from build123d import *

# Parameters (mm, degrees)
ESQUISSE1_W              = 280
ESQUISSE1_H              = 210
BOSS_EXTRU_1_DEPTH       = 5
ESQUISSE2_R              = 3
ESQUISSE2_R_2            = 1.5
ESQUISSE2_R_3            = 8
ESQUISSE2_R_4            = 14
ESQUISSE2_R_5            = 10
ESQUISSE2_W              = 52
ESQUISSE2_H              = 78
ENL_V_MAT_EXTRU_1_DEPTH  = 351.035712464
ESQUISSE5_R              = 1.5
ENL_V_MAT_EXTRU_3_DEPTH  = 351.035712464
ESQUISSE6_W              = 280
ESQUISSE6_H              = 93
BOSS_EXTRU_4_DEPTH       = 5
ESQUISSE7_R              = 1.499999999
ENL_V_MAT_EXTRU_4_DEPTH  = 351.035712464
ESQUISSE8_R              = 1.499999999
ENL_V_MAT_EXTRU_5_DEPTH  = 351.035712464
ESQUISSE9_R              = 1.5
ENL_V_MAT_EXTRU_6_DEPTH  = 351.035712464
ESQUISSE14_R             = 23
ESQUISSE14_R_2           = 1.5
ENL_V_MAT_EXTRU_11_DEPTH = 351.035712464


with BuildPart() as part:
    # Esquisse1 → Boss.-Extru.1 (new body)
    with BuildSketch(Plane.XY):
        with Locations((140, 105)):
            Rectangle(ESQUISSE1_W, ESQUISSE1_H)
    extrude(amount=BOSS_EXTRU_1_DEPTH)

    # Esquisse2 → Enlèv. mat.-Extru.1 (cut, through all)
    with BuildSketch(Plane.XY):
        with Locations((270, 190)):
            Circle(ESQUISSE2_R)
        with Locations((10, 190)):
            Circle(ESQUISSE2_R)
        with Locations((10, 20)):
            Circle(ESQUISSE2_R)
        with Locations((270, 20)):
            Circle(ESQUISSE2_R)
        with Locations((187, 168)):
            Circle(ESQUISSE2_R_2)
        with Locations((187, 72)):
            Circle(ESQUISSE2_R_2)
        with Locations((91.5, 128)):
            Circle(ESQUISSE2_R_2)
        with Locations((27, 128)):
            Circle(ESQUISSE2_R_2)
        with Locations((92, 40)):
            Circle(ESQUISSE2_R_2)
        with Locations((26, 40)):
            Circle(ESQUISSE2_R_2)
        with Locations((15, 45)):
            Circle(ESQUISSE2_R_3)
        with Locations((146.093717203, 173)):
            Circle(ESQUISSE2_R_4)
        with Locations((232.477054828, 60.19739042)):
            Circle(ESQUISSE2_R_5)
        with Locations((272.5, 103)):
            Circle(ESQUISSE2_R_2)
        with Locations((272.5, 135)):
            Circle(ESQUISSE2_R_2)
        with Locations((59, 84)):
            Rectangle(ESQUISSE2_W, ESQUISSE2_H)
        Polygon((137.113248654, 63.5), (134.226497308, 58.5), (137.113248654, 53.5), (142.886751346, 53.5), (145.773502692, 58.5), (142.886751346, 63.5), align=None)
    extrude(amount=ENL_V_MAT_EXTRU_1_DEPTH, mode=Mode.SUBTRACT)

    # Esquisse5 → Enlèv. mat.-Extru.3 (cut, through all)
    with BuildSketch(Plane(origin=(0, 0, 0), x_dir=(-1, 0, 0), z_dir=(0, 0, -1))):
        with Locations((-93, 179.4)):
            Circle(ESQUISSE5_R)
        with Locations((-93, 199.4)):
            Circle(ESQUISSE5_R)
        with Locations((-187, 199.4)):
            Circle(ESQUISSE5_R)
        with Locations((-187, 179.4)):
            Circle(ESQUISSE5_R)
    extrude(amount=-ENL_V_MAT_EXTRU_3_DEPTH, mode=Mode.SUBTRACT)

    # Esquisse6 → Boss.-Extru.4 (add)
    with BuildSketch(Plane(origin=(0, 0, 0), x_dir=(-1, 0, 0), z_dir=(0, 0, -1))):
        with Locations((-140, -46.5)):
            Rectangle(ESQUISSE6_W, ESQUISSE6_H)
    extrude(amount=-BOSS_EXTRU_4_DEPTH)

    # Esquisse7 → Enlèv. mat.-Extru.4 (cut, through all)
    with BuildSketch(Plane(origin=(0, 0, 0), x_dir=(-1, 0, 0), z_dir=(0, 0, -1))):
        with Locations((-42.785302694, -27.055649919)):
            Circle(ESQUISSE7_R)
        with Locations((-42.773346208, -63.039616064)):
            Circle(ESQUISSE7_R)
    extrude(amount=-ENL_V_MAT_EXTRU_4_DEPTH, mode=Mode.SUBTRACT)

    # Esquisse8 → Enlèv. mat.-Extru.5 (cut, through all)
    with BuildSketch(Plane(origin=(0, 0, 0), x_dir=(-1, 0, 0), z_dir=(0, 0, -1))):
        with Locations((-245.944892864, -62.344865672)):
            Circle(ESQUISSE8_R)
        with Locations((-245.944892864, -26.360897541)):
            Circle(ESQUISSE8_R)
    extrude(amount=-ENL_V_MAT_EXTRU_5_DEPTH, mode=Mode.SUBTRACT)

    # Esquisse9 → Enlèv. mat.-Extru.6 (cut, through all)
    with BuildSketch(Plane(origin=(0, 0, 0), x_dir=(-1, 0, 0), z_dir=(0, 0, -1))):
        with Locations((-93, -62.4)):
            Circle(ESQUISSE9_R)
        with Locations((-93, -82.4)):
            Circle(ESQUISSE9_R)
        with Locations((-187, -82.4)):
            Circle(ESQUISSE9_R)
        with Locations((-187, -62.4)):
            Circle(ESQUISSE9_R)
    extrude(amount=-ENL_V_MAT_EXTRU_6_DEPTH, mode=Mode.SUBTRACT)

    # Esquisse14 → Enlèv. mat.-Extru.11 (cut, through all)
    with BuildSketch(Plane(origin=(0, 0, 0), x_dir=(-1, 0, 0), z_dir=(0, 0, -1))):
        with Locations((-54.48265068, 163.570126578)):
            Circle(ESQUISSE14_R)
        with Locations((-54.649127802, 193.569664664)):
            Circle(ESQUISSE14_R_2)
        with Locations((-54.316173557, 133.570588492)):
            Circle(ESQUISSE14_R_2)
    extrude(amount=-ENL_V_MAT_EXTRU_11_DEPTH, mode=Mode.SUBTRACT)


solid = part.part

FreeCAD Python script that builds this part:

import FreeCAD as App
import Part
import Sketcher
Q = App.Units.Quantity


def add_polygon(sketch, points):
    """Adds a closed chain of lines whose ends are joined by coincident constraints."""
    first, n = sketch.GeometryCount, len(points)
    for a, b in zip(points, points[1:] + points[:1]):
        sketch.addGeometry(Part.LineSegment(App.Vector(*a, 0), App.Vector(*b, 0)), False)
    for i in range(n):
        sketch.addConstraint(Sketcher.Constraint("Coincident", first + i, 2, first + (i + 1) % n, 1))

doc = App.newDocument("Part")
body = doc.addObject("PartDesign::Body", "Body")

# Sketch on XY plane
sketch1 = doc.addObject("Sketcher::SketchObject", "Sketch")
body.addObject(sketch1)
sketch1.AttachmentSupport = (doc.XY_Plane, [""])
sketch1.MapMode = "FlatFace"
add_polygon(sketch1, [(0, 210), (0, 0), (280, 0), (280, 210)])  # lines 0-3
sketch1.addConstraint(Sketcher.Constraint("Vertical", 0))
sketch1.addConstraint(Sketcher.Constraint("Horizontal", 1))
sketch1.addConstraint(Sketcher.Constraint("Vertical", 2))
sketch1.addConstraint(Sketcher.Constraint("Horizontal", 3))
sketch1.addConstraint(Sketcher.Constraint("Coincident", 0, 2, -1, 1))
sketch1.addConstraint(Sketcher.Constraint("DistanceX", 1, 1, 1, 2, Q("280 mm")))
sketch1.addConstraint(Sketcher.Constraint("DistanceY", 0, 2, 0, 1, Q("210 mm")))
pad1 = doc.addObject("PartDesign::Pad", "Pad")
body.addObject(pad1)
pad1.Profile = sketch1
pad1.Length = 5

# Sketch on XY plane
sketch2 = doc.addObject("Sketcher::SketchObject", "Sketch001")
body.addObject(sketch2)
sketch2.AttachmentSupport = (doc.XY_Plane, [""])
sketch2.MapMode = "FlatFace"
sketch2.addGeometry(Part.Circle(App.Vector(270, 190, 0), App.Vector(0, 0, 1), 3), False)  # 0
sketch2.addGeometry(Part.Circle(App.Vector(10, 190, 0), App.Vector(0, 0, 1), 3), False)  # 1
sketch2.addGeometry(Part.Circle(App.Vector(10, 20, 0), App.Vector(0, 0, 1), 3), False)  # 2
sketch2.addGeometry(Part.Circle(App.Vector(270, 20, 0), App.Vector(0, 0, 1), 3), False)  # 3
sketch2.addGeometry(Part.Circle(App.Vector(187, 168, 0), App.Vector(0, 0, 1), 1.5), False)  # 4
sketch2.addGeometry(Part.Circle(App.Vector(187, 72, 0), App.Vector(0, 0, 1), 1.5), False)  # 5
sketch2.addGeometry(Part.Circle(App.Vector(91.5, 128, 0), App.Vector(0, 0, 1), 1.5), False)  # 6
sketch2.addGeometry(Part.Circle(App.Vector(27, 128, 0), App.Vector(0, 0, 1), 1.5), False)  # 7
sketch2.addGeometry(Part.Circle(App.Vector(92, 40, 0), App.Vector(0, 0, 1), 1.5), False)  # 8
sketch2.addGeometry(Part.Circle(App.Vector(26, 40, 0), App.Vector(0, 0, 1), 1.5), False)  # 9
sketch2.addGeometry(Part.Circle(App.Vector(15, 45, 0), App.Vector(0, 0, 1), 8), False)  # 10
sketch2.addGeometry(Part.Circle(App.Vector(146.093717, 173, 0), App.Vector(0, 0, 1), 14), False)  # 11
sketch2.addGeometry(Part.Circle(App.Vector(232.477055, 60.19739, 0), App.Vector(0, 0, 1), 10), False)  # 12
sketch2.addGeometry(Part.Circle(App.Vector(272.5, 103, 0), App.Vector(0, 0, 1), 1.5), False)  # 13
sketch2.addGeometry(Part.Circle(App.Vector(272.5, 135, 0), App.Vector(0, 0, 1), 1.5), False)  # 14
add_polygon(sketch2, [(33, 123), (33, 45), (85, 45), (85, 123)])  # lines 15-18
add_polygon(sketch2, [(137.113249, 63.5), (134.226497, 58.5), (137.113249, 53.5), (142.886751, 53.5), (145.773503, 58.5), (142.886751, 63.5)])  # lines 19-24
sketch2.addConstraint(Sketcher.Constraint("Vertical", 15))
sketch2.addConstraint(Sketcher.Constraint("Horizontal", 16))
sketch2.addConstraint(Sketcher.Constraint("Vertical", 17))
sketch2.addConstraint(Sketcher.Constraint("Horizontal", 18))
sketch2.addConstraint(Sketcher.Constraint("Horizontal", 21))
sketch2.addConstraint(Sketcher.Constraint("Horizontal", 24))
sketch2.addConstraint(Sketcher.Constraint("Equal", 0, 1))
sketch2.addConstraint(Sketcher.Constraint("Equal", 1, 2))
sketch2.addConstraint(Sketcher.Constraint("Equal", 2, 3))
sketch2.addConstraint(Sketcher.Constraint("Equal", 4, 5))
sketch2.addConstraint(Sketcher.Constraint("Equal", 5, 6))
sketch2.addConstraint(Sketcher.Constraint("Equal", 6, 7))
sketch2.addConstraint(Sketcher.Constraint("Equal", 7, 8))
sketch2.addConstraint(Sketcher.Constraint("Equal", 8, 9))
sketch2.addConstraint(Sketcher.Constraint("Equal", 9, 13))
sketch2.addConstraint(Sketcher.Constraint("Equal", 13, 14))
sketch2.addConstraint(Sketcher.Constraint("Parallel", 19, 22))
sketch2.addConstraint(Sketcher.Constraint("Parallel", 20, 23))
sketch2.addConstraint(Sketcher.Constraint("Horizontal", 0, 3, 1, 3))
sketch2.addConstraint(Sketcher.Constraint("Horizontal", 2, 3, 3, 3))
sketch2.addConstraint(Sketcher.Constraint("Horizontal", 6, 3, 7, 3))
sketch2.addConstraint(Sketcher.Constraint("Horizontal", 8, 3, 9, 3))
sketch2.addConstraint(Sketcher.Constraint("Horizontal", 10, 3, 15, 2))
sketch2.addConstraint(Sketcher.Constraint("Horizontal", 19, 2, 22, 2))
sketch2.addConstraint(Sketcher.Constraint("Vertical", 1, 3, 2, 3))
sketch2.addConstraint(Sketcher.Constraint("Vertical", 0, 3, 3, 3))
sketch2.addConstraint(Sketcher.Constraint("Vertical", 4, 3, 5, 3))
sketch2.addConstraint(Sketcher.Constraint("Vertical", 13, 3, 14, 3))
sketch2.addConstraint(Sketcher.Constraint("Vertical", 21, 2, 23, 2))
sketch2.addConstraint(Sketcher.Constraint("Vertical", 20, 2, 24, 2))
sketch2.addConstraint(Sketcher.Constraint("Diameter", 0, Q("6 mm")))
sketch2.addConstraint(Sketcher.Constraint("Diameter", 4, Q("3 mm")))
sketch2.addConstraint(Sketcher.Constraint("Diameter", 10, Q("16 mm")))
sketch2.addConstraint(Sketcher.Constraint("Diameter", 11, Q("28 mm")))
sketch2.addConstraint(Sketcher.Constraint("Diameter", 12, Q("20 mm")))
sketch2.addConstraint(Sketcher.Constraint("DistanceX", 16, 1, 16, 2, Q("52 mm")))
sketch2.addConstraint(Sketcher.Constraint("DistanceY", 15, 2, 15, 1, Q("78 mm")))
sketch2.addConstraint(Sketcher.Constraint("Angle", 19, Q("-120 deg")))
sketch2.addConstraint(Sketcher.Constraint("DistanceX", -1, 1, 0, 3, Q("270 mm")))
sketch2.addConstraint(Sketcher.Constraint("DistanceY", -1, 1, 0, 3, Q("190 mm")))
sketch2.addConstraint(Sketcher.Constraint("DistanceX", -1, 1, 1, 3, Q("10 mm")))
sketch2.addConstraint(Sketcher.Constraint("DistanceY", -1, 1, 2, 3, Q("20 mm")))
sketch2.addConstraint(Sketcher.Constraint("DistanceX", -1, 1, 4, 3, Q("187 mm")))
sketch2.addConstraint(Sketcher.Constraint("DistanceY", -1, 1, 4, 3, Q("168 mm")))
sketch2.addConstraint(Sketcher.Constraint("DistanceY", -1, 1, 5, 3, Q("72 mm")))
sketch2.addConstraint(Sketcher.Constraint("DistanceY", -1, 1, 6, 3, Q("128 mm")))
sketch2.addConstraint(Sketcher.Constraint("DistanceX", -1, 1, 7, 3, Q("27 mm")))
sketch2.addConstraint(Sketcher.Constraint("DistanceX", -1, 1, 8, 3, Q("92 mm")))
sketch2.addConstraint(Sketcher.Constraint("DistanceY", -1, 1, 8, 3, Q("40 mm")))
sketch2.addConstraint(Sketcher.Constraint("DistanceX", -1, 1, 9, 3, Q("26 mm")))
sketch2.addConstraint(Sketcher.Constraint("DistanceX", -1, 1, 10, 3, Q("15 mm")))
sketch2.addConstraint(Sketcher.Constraint("DistanceY", -1, 1, 10, 3, Q("45 mm")))
sketch2.addConstraint(Sketcher.Constraint("DistanceY", -1, 1, 11, 3, Q("173 mm")))
sketch2.addConstraint(Sketcher.Constraint("DistanceY", -1, 1, 13, 3, Q("103 mm")))
sketch2.addConstraint(Sketcher.Constraint("DistanceY", -1, 1, 14, 3, Q("135 mm")))
sketch2.addConstraint(Sketcher.Constraint("DistanceX", -1, 1, 15, 2, Q("33 mm")))
sketch2.addConstraint(Sketcher.Constraint("DistanceY", 20, 2, 19, 2, Q("5 mm")))
sketch2.addConstraint(Sketcher.Constraint("DistanceX", -1, 1, 6, 3, Q("91.5 mm")))
sketch2.addConstraint(Sketcher.Constraint("DistanceX", -1, 1, 13, 3, Q("272.5 mm")))
sketch2.addConstraint(Sketcher.Constraint("DistanceY", -1, 1, 19, 2, Q("58.5 mm")))
sketch2.addConstraint(Sketcher.Constraint("DistanceX", 21, 1, 21, 2, Q("5.773503 mm")))
sketch2.addConstraint(Sketcher.Constraint("DistanceY", -1, 1, 12, 3, Q("60.19739 mm")))
sketch2.addConstraint(Sketcher.Constraint("DistanceX", -1, 1, 20, 2, Q("137.113249 mm")))
sketch2.addConstraint(Sketcher.Constraint("DistanceX", -1, 1, 11, 3, Q("146.093717 mm")))
sketch2.addConstraint(Sketcher.Constraint("DistanceX", -1, 1, 12, 3, Q("232.477055 mm")))
pocket1 = doc.addObject("PartDesign::Pocket", "Pocket")
body.addObject(pocket1)
pocket1.Profile = sketch2
pocket1.Type = "ThroughAll"
pocket1.Reversed = True

# Sketch on XY plane
sketch3 = doc.addObject("Sketcher::SketchObject", "Sketch002")
body.addObject(sketch3)
sketch3.AttachmentSupport = (doc.XY_Plane, [""])
sketch3.MapMode = "FlatFace"
sketch3.addGeometry(Part.Circle(App.Vector(93, 179.4, 0), App.Vector(0, 0, 1), 1.5), False)
sketch3.addGeometry(Part.Circle(App.Vector(93, 199.4, 0), App.Vector(0, 0, 1), 1.5), False)
sketch3.addGeometry(Part.Circle(App.Vector(187, 199.4, 0), App.Vector(0, 0, 1), 1.5), False)
sketch3.addGeometry(Part.Circle(App.Vector(187, 179.4, 0), App.Vector(0, 0, 1), 1.5), False)
sketch3.addConstraint(Sketcher.Constraint("Equal", 0, 1))
sketch3.addConstraint(Sketcher.Constraint("Equal", 1, 2))
sketch3.addConstraint(Sketcher.Constraint("Equal", 2, 3))
sketch3.addConstraint(Sketcher.Constraint("Horizontal", 1, 3, 2, 3))
sketch3.addConstraint(Sketcher.Constraint("Horizontal", 0, 3, 3, 3))
sketch3.addConstraint(Sketcher.Constraint("Vertical", 0, 3, 1, 3))
sketch3.addConstraint(Sketcher.Constraint("Vertical", 2, 3, 3, 3))
sketch3.addConstraint(Sketcher.Constraint("Diameter", 0, Q("3 mm")))
sketch3.addConstraint(Sketcher.Constraint("DistanceX", -1, 1, 0, 3, Q("93 mm")))
sketch3.addConstraint(Sketcher.Constraint("DistanceX", -1, 1, 2, 3, Q("187 mm")))
sketch3.addConstraint(Sketcher.Constraint("DistanceY", 0, 3, 1, 3, Q("20 mm")))
sketch3.addConstraint(Sketcher.Constraint("DistanceY", -1, 1, 0, 3, Q("179.4 mm")))
pocket2 = doc.addObject("PartDesign::Pocket", "Pocket001")
body.addObject(pocket2)
pocket2.Profile = sketch3
pocket2.Type = "ThroughAll"
pocket2.Reversed = True

# Sketch on XY plane
sketch4 = doc.addObject("Sketcher::SketchObject", "Sketch003")
body.addObject(sketch4)
sketch4.AttachmentSupport = (doc.XY_Plane, [""])
sketch4.MapMode = "FlatFace"
add_polygon(sketch4, [(280, 0), (280, -93), (0, -93), (0, 0)])  # lines 0-3
sketch4.addConstraint(Sketcher.Constraint("Vertical", 0))
sketch4.addConstraint(Sketcher.Constraint("Horizontal", 1))
sketch4.addConstraint(Sketcher.Constraint("Vertical", 2))
sketch4.addConstraint(Sketcher.Constraint("Horizontal", 3))
sketch4.addConstraint(Sketcher.Constraint("Coincident", 2, 2, -1, 1))
sketch4.addConstraint(Sketcher.Constraint("DistanceX", 1, 2, 1, 1, Q("280 mm")))
sketch4.addConstraint(Sketcher.Constraint("DistanceY", 0, 2, 0, 1, Q("93 mm")))
pad2 = doc.addObject("PartDesign::Pad", "Pad001")
body.addObject(pad2)
pad2.Profile = sketch4
pad2.Length = 5

# Sketch on XY plane
sketch5 = doc.addObject("Sketcher::SketchObject", "Sketch004")
body.addObject(sketch5)
sketch5.AttachmentSupport = (doc.XY_Plane, [""])
sketch5.MapMode = "FlatFace"
sketch5.addGeometry(Part.Circle(App.Vector(42.785303, -27.05565, 0), App.Vector(0, 0, 1), 1.5), False)
sketch5.addGeometry(Part.Circle(App.Vector(42.773346, -63.039616, 0), App.Vector(0, 0, 1), 1.5), False)
sketch5.addConstraint(Sketcher.Constraint("Equal", 0, 1))
sketch5.addConstraint(Sketcher.Constraint("Diameter", 0, Q("3 mm")))
sketch5.addConstraint(Sketcher.Constraint("DistanceY", 0, 3, -1, 1, Q("27.05565 mm")))
sketch5.addConstraint(Sketcher.Constraint("DistanceX", -1, 1, 0, 3, Q("42.785303 mm")))
sketch5.addConstraint(Sketcher.Constraint("DistanceX", -1, 1, 1, 3, Q("42.773346 mm")))
sketch5.addConstraint(Sketcher.Constraint("DistanceY", 1, 3, -1, 1, Q("63.039616 mm")))
pocket3 = doc.addObject("PartDesign::Pocket", "Pocket002")
body.addObject(pocket3)
pocket3.Profile = sketch5
pocket3.Type = "ThroughAll"
pocket3.Reversed = True

# Sketch on XY plane
sketch6 = doc.addObject("Sketcher::SketchObject", "Sketch005")
body.addObject(sketch6)
sketch6.AttachmentSupport = (doc.XY_Plane, [""])
sketch6.MapMode = "FlatFace"
sketch6.addGeometry(Part.Circle(App.Vector(245.944893, -62.344866, 0), App.Vector(0, 0, 1), 1.5), False)
sketch6.addGeometry(Part.Circle(App.Vector(245.944893, -26.360898, 0), App.Vector(0, 0, 1), 1.5), False)
sketch6.addConstraint(Sketcher.Constraint("Equal", 0, 1))
sketch6.addConstraint(Sketcher.Constraint("Vertical", 0, 3, 1, 3))
sketch6.addConstraint(Sketcher.Constraint("Diameter", 0, Q("3 mm")))
sketch6.addConstraint(Sketcher.Constraint("DistanceY", 0, 3, 1, 3, Q("35.983968 mm")))
sketch6.addConstraint(Sketcher.Constraint("DistanceX", -1, 1, 0, 3, Q("245.944893 mm")))
sketch6.addConstraint(Sketcher.Constraint("DistanceY", 0, 3, -1, 1, Q("62.344866 mm")))
pocket4 = doc.addObject("PartDesign::Pocket", "Pocket003")
body.addObject(pocket4)
pocket4.Profile = sketch6
pocket4.Type = "ThroughAll"
pocket4.Reversed = True

# Sketch on XY plane
sketch7 = doc.addObject("Sketcher::SketchObject", "Sketch006")
body.addObject(sketch7)
sketch7.AttachmentSupport = (doc.XY_Plane, [""])
sketch7.MapMode = "FlatFace"
sketch7.addGeometry(Part.Circle(App.Vector(93, -62.4, 0), App.Vector(0, 0, 1), 1.5), False)
sketch7.addGeometry(Part.Circle(App.Vector(93, -82.4, 0), App.Vector(0, 0, 1), 1.5), False)
sketch7.addGeometry(Part.Circle(App.Vector(187, -82.4, 0), App.Vector(0, 0, 1), 1.5), False)
sketch7.addGeometry(Part.Circle(App.Vector(187, -62.4, 0), App.Vector(0, 0, 1), 1.5), False)
sketch7.addConstraint(Sketcher.Constraint("Equal", 0, 1))
sketch7.addConstraint(Sketcher.Constraint("Equal", 1, 2))
sketch7.addConstraint(Sketcher.Constraint("Equal", 2, 3))
sketch7.addConstraint(Sketcher.Constraint("Horizontal", 1, 3, 2, 3))
sketch7.addConstraint(Sketcher.Constraint("Horizontal", 0, 3, 3, 3))
sketch7.addConstraint(Sketcher.Constraint("Vertical", 0, 3, 1, 3))
sketch7.addConstraint(Sketcher.Constraint("Vertical", 2, 3, 3, 3))
sketch7.addConstraint(Sketcher.Constraint("Diameter", 0, Q("3 mm")))
sketch7.addConstraint(Sketcher.Constraint("DistanceX", -1, 1, 0, 3, Q("93 mm")))
sketch7.addConstraint(Sketcher.Constraint("DistanceX", -1, 1, 2, 3, Q("187 mm")))
sketch7.addConstraint(Sketcher.Constraint("DistanceY", 1, 3, 0, 3, Q("20 mm")))
sketch7.addConstraint(Sketcher.Constraint("DistanceY", 0, 3, -1, 1, Q("62.4 mm")))
pocket5 = doc.addObject("PartDesign::Pocket", "Pocket004")
body.addObject(pocket5)
pocket5.Profile = sketch7
pocket5.Type = "ThroughAll"
pocket5.Reversed = True

# Sketch on XY plane
sketch8 = doc.addObject("Sketcher::SketchObject", "Sketch007")
body.addObject(sketch8)
sketch8.AttachmentSupport = (doc.XY_Plane, [""])
sketch8.MapMode = "FlatFace"
sketch8.addGeometry(Part.Circle(App.Vector(54.482651, 163.570127, 0), App.Vector(0, 0, 1), 23), False)
sketch8.addGeometry(Part.Circle(App.Vector(54.649128, 193.569665, 0), App.Vector(0, 0, 1), 1.5), False)
sketch8.addGeometry(Part.Circle(App.Vector(54.316174, 133.570588, 0), App.Vector(0, 0, 1), 1.5), False)
sketch8.addConstraint(Sketcher.Constraint("Equal", 1, 2))
sketch8.addConstraint(Sketcher.Constraint("Diameter", 0, Q("46 mm")))
sketch8.addConstraint(Sketcher.Constraint("Diameter", 1, Q("3 mm")))
sketch8.addConstraint(Sketcher.Constraint("DistanceX", -1, 1, 0, 3, Q("54.482651 mm")))
sketch8.addConstraint(Sketcher.Constraint("DistanceY", -1, 1, 2, 3, Q("133.570588 mm")))
sketch8.addConstraint(Sketcher.Constraint("DistanceY", 0, 3, 1, 3, Q("29.999538 mm")))
sketch8.addConstraint(Sketcher.Constraint("DistanceY", 2, 3, 0, 3, Q("29.999538 mm")))
sketch8.addConstraint(Sketcher.Constraint("DistanceX", -1, 1, 1, 3, Q("54.649128 mm")))
sketch8.addConstraint(Sketcher.Constraint("DistanceX", -1, 1, 2, 3, Q("54.316174 mm")))
pocket6 = doc.addObject("PartDesign::Pocket", "Pocket005")
body.addObject(pocket6)
pocket6.Profile = sketch8
pocket6.Type = "ThroughAll"
pocket6.Reversed = True

doc.recompute()
